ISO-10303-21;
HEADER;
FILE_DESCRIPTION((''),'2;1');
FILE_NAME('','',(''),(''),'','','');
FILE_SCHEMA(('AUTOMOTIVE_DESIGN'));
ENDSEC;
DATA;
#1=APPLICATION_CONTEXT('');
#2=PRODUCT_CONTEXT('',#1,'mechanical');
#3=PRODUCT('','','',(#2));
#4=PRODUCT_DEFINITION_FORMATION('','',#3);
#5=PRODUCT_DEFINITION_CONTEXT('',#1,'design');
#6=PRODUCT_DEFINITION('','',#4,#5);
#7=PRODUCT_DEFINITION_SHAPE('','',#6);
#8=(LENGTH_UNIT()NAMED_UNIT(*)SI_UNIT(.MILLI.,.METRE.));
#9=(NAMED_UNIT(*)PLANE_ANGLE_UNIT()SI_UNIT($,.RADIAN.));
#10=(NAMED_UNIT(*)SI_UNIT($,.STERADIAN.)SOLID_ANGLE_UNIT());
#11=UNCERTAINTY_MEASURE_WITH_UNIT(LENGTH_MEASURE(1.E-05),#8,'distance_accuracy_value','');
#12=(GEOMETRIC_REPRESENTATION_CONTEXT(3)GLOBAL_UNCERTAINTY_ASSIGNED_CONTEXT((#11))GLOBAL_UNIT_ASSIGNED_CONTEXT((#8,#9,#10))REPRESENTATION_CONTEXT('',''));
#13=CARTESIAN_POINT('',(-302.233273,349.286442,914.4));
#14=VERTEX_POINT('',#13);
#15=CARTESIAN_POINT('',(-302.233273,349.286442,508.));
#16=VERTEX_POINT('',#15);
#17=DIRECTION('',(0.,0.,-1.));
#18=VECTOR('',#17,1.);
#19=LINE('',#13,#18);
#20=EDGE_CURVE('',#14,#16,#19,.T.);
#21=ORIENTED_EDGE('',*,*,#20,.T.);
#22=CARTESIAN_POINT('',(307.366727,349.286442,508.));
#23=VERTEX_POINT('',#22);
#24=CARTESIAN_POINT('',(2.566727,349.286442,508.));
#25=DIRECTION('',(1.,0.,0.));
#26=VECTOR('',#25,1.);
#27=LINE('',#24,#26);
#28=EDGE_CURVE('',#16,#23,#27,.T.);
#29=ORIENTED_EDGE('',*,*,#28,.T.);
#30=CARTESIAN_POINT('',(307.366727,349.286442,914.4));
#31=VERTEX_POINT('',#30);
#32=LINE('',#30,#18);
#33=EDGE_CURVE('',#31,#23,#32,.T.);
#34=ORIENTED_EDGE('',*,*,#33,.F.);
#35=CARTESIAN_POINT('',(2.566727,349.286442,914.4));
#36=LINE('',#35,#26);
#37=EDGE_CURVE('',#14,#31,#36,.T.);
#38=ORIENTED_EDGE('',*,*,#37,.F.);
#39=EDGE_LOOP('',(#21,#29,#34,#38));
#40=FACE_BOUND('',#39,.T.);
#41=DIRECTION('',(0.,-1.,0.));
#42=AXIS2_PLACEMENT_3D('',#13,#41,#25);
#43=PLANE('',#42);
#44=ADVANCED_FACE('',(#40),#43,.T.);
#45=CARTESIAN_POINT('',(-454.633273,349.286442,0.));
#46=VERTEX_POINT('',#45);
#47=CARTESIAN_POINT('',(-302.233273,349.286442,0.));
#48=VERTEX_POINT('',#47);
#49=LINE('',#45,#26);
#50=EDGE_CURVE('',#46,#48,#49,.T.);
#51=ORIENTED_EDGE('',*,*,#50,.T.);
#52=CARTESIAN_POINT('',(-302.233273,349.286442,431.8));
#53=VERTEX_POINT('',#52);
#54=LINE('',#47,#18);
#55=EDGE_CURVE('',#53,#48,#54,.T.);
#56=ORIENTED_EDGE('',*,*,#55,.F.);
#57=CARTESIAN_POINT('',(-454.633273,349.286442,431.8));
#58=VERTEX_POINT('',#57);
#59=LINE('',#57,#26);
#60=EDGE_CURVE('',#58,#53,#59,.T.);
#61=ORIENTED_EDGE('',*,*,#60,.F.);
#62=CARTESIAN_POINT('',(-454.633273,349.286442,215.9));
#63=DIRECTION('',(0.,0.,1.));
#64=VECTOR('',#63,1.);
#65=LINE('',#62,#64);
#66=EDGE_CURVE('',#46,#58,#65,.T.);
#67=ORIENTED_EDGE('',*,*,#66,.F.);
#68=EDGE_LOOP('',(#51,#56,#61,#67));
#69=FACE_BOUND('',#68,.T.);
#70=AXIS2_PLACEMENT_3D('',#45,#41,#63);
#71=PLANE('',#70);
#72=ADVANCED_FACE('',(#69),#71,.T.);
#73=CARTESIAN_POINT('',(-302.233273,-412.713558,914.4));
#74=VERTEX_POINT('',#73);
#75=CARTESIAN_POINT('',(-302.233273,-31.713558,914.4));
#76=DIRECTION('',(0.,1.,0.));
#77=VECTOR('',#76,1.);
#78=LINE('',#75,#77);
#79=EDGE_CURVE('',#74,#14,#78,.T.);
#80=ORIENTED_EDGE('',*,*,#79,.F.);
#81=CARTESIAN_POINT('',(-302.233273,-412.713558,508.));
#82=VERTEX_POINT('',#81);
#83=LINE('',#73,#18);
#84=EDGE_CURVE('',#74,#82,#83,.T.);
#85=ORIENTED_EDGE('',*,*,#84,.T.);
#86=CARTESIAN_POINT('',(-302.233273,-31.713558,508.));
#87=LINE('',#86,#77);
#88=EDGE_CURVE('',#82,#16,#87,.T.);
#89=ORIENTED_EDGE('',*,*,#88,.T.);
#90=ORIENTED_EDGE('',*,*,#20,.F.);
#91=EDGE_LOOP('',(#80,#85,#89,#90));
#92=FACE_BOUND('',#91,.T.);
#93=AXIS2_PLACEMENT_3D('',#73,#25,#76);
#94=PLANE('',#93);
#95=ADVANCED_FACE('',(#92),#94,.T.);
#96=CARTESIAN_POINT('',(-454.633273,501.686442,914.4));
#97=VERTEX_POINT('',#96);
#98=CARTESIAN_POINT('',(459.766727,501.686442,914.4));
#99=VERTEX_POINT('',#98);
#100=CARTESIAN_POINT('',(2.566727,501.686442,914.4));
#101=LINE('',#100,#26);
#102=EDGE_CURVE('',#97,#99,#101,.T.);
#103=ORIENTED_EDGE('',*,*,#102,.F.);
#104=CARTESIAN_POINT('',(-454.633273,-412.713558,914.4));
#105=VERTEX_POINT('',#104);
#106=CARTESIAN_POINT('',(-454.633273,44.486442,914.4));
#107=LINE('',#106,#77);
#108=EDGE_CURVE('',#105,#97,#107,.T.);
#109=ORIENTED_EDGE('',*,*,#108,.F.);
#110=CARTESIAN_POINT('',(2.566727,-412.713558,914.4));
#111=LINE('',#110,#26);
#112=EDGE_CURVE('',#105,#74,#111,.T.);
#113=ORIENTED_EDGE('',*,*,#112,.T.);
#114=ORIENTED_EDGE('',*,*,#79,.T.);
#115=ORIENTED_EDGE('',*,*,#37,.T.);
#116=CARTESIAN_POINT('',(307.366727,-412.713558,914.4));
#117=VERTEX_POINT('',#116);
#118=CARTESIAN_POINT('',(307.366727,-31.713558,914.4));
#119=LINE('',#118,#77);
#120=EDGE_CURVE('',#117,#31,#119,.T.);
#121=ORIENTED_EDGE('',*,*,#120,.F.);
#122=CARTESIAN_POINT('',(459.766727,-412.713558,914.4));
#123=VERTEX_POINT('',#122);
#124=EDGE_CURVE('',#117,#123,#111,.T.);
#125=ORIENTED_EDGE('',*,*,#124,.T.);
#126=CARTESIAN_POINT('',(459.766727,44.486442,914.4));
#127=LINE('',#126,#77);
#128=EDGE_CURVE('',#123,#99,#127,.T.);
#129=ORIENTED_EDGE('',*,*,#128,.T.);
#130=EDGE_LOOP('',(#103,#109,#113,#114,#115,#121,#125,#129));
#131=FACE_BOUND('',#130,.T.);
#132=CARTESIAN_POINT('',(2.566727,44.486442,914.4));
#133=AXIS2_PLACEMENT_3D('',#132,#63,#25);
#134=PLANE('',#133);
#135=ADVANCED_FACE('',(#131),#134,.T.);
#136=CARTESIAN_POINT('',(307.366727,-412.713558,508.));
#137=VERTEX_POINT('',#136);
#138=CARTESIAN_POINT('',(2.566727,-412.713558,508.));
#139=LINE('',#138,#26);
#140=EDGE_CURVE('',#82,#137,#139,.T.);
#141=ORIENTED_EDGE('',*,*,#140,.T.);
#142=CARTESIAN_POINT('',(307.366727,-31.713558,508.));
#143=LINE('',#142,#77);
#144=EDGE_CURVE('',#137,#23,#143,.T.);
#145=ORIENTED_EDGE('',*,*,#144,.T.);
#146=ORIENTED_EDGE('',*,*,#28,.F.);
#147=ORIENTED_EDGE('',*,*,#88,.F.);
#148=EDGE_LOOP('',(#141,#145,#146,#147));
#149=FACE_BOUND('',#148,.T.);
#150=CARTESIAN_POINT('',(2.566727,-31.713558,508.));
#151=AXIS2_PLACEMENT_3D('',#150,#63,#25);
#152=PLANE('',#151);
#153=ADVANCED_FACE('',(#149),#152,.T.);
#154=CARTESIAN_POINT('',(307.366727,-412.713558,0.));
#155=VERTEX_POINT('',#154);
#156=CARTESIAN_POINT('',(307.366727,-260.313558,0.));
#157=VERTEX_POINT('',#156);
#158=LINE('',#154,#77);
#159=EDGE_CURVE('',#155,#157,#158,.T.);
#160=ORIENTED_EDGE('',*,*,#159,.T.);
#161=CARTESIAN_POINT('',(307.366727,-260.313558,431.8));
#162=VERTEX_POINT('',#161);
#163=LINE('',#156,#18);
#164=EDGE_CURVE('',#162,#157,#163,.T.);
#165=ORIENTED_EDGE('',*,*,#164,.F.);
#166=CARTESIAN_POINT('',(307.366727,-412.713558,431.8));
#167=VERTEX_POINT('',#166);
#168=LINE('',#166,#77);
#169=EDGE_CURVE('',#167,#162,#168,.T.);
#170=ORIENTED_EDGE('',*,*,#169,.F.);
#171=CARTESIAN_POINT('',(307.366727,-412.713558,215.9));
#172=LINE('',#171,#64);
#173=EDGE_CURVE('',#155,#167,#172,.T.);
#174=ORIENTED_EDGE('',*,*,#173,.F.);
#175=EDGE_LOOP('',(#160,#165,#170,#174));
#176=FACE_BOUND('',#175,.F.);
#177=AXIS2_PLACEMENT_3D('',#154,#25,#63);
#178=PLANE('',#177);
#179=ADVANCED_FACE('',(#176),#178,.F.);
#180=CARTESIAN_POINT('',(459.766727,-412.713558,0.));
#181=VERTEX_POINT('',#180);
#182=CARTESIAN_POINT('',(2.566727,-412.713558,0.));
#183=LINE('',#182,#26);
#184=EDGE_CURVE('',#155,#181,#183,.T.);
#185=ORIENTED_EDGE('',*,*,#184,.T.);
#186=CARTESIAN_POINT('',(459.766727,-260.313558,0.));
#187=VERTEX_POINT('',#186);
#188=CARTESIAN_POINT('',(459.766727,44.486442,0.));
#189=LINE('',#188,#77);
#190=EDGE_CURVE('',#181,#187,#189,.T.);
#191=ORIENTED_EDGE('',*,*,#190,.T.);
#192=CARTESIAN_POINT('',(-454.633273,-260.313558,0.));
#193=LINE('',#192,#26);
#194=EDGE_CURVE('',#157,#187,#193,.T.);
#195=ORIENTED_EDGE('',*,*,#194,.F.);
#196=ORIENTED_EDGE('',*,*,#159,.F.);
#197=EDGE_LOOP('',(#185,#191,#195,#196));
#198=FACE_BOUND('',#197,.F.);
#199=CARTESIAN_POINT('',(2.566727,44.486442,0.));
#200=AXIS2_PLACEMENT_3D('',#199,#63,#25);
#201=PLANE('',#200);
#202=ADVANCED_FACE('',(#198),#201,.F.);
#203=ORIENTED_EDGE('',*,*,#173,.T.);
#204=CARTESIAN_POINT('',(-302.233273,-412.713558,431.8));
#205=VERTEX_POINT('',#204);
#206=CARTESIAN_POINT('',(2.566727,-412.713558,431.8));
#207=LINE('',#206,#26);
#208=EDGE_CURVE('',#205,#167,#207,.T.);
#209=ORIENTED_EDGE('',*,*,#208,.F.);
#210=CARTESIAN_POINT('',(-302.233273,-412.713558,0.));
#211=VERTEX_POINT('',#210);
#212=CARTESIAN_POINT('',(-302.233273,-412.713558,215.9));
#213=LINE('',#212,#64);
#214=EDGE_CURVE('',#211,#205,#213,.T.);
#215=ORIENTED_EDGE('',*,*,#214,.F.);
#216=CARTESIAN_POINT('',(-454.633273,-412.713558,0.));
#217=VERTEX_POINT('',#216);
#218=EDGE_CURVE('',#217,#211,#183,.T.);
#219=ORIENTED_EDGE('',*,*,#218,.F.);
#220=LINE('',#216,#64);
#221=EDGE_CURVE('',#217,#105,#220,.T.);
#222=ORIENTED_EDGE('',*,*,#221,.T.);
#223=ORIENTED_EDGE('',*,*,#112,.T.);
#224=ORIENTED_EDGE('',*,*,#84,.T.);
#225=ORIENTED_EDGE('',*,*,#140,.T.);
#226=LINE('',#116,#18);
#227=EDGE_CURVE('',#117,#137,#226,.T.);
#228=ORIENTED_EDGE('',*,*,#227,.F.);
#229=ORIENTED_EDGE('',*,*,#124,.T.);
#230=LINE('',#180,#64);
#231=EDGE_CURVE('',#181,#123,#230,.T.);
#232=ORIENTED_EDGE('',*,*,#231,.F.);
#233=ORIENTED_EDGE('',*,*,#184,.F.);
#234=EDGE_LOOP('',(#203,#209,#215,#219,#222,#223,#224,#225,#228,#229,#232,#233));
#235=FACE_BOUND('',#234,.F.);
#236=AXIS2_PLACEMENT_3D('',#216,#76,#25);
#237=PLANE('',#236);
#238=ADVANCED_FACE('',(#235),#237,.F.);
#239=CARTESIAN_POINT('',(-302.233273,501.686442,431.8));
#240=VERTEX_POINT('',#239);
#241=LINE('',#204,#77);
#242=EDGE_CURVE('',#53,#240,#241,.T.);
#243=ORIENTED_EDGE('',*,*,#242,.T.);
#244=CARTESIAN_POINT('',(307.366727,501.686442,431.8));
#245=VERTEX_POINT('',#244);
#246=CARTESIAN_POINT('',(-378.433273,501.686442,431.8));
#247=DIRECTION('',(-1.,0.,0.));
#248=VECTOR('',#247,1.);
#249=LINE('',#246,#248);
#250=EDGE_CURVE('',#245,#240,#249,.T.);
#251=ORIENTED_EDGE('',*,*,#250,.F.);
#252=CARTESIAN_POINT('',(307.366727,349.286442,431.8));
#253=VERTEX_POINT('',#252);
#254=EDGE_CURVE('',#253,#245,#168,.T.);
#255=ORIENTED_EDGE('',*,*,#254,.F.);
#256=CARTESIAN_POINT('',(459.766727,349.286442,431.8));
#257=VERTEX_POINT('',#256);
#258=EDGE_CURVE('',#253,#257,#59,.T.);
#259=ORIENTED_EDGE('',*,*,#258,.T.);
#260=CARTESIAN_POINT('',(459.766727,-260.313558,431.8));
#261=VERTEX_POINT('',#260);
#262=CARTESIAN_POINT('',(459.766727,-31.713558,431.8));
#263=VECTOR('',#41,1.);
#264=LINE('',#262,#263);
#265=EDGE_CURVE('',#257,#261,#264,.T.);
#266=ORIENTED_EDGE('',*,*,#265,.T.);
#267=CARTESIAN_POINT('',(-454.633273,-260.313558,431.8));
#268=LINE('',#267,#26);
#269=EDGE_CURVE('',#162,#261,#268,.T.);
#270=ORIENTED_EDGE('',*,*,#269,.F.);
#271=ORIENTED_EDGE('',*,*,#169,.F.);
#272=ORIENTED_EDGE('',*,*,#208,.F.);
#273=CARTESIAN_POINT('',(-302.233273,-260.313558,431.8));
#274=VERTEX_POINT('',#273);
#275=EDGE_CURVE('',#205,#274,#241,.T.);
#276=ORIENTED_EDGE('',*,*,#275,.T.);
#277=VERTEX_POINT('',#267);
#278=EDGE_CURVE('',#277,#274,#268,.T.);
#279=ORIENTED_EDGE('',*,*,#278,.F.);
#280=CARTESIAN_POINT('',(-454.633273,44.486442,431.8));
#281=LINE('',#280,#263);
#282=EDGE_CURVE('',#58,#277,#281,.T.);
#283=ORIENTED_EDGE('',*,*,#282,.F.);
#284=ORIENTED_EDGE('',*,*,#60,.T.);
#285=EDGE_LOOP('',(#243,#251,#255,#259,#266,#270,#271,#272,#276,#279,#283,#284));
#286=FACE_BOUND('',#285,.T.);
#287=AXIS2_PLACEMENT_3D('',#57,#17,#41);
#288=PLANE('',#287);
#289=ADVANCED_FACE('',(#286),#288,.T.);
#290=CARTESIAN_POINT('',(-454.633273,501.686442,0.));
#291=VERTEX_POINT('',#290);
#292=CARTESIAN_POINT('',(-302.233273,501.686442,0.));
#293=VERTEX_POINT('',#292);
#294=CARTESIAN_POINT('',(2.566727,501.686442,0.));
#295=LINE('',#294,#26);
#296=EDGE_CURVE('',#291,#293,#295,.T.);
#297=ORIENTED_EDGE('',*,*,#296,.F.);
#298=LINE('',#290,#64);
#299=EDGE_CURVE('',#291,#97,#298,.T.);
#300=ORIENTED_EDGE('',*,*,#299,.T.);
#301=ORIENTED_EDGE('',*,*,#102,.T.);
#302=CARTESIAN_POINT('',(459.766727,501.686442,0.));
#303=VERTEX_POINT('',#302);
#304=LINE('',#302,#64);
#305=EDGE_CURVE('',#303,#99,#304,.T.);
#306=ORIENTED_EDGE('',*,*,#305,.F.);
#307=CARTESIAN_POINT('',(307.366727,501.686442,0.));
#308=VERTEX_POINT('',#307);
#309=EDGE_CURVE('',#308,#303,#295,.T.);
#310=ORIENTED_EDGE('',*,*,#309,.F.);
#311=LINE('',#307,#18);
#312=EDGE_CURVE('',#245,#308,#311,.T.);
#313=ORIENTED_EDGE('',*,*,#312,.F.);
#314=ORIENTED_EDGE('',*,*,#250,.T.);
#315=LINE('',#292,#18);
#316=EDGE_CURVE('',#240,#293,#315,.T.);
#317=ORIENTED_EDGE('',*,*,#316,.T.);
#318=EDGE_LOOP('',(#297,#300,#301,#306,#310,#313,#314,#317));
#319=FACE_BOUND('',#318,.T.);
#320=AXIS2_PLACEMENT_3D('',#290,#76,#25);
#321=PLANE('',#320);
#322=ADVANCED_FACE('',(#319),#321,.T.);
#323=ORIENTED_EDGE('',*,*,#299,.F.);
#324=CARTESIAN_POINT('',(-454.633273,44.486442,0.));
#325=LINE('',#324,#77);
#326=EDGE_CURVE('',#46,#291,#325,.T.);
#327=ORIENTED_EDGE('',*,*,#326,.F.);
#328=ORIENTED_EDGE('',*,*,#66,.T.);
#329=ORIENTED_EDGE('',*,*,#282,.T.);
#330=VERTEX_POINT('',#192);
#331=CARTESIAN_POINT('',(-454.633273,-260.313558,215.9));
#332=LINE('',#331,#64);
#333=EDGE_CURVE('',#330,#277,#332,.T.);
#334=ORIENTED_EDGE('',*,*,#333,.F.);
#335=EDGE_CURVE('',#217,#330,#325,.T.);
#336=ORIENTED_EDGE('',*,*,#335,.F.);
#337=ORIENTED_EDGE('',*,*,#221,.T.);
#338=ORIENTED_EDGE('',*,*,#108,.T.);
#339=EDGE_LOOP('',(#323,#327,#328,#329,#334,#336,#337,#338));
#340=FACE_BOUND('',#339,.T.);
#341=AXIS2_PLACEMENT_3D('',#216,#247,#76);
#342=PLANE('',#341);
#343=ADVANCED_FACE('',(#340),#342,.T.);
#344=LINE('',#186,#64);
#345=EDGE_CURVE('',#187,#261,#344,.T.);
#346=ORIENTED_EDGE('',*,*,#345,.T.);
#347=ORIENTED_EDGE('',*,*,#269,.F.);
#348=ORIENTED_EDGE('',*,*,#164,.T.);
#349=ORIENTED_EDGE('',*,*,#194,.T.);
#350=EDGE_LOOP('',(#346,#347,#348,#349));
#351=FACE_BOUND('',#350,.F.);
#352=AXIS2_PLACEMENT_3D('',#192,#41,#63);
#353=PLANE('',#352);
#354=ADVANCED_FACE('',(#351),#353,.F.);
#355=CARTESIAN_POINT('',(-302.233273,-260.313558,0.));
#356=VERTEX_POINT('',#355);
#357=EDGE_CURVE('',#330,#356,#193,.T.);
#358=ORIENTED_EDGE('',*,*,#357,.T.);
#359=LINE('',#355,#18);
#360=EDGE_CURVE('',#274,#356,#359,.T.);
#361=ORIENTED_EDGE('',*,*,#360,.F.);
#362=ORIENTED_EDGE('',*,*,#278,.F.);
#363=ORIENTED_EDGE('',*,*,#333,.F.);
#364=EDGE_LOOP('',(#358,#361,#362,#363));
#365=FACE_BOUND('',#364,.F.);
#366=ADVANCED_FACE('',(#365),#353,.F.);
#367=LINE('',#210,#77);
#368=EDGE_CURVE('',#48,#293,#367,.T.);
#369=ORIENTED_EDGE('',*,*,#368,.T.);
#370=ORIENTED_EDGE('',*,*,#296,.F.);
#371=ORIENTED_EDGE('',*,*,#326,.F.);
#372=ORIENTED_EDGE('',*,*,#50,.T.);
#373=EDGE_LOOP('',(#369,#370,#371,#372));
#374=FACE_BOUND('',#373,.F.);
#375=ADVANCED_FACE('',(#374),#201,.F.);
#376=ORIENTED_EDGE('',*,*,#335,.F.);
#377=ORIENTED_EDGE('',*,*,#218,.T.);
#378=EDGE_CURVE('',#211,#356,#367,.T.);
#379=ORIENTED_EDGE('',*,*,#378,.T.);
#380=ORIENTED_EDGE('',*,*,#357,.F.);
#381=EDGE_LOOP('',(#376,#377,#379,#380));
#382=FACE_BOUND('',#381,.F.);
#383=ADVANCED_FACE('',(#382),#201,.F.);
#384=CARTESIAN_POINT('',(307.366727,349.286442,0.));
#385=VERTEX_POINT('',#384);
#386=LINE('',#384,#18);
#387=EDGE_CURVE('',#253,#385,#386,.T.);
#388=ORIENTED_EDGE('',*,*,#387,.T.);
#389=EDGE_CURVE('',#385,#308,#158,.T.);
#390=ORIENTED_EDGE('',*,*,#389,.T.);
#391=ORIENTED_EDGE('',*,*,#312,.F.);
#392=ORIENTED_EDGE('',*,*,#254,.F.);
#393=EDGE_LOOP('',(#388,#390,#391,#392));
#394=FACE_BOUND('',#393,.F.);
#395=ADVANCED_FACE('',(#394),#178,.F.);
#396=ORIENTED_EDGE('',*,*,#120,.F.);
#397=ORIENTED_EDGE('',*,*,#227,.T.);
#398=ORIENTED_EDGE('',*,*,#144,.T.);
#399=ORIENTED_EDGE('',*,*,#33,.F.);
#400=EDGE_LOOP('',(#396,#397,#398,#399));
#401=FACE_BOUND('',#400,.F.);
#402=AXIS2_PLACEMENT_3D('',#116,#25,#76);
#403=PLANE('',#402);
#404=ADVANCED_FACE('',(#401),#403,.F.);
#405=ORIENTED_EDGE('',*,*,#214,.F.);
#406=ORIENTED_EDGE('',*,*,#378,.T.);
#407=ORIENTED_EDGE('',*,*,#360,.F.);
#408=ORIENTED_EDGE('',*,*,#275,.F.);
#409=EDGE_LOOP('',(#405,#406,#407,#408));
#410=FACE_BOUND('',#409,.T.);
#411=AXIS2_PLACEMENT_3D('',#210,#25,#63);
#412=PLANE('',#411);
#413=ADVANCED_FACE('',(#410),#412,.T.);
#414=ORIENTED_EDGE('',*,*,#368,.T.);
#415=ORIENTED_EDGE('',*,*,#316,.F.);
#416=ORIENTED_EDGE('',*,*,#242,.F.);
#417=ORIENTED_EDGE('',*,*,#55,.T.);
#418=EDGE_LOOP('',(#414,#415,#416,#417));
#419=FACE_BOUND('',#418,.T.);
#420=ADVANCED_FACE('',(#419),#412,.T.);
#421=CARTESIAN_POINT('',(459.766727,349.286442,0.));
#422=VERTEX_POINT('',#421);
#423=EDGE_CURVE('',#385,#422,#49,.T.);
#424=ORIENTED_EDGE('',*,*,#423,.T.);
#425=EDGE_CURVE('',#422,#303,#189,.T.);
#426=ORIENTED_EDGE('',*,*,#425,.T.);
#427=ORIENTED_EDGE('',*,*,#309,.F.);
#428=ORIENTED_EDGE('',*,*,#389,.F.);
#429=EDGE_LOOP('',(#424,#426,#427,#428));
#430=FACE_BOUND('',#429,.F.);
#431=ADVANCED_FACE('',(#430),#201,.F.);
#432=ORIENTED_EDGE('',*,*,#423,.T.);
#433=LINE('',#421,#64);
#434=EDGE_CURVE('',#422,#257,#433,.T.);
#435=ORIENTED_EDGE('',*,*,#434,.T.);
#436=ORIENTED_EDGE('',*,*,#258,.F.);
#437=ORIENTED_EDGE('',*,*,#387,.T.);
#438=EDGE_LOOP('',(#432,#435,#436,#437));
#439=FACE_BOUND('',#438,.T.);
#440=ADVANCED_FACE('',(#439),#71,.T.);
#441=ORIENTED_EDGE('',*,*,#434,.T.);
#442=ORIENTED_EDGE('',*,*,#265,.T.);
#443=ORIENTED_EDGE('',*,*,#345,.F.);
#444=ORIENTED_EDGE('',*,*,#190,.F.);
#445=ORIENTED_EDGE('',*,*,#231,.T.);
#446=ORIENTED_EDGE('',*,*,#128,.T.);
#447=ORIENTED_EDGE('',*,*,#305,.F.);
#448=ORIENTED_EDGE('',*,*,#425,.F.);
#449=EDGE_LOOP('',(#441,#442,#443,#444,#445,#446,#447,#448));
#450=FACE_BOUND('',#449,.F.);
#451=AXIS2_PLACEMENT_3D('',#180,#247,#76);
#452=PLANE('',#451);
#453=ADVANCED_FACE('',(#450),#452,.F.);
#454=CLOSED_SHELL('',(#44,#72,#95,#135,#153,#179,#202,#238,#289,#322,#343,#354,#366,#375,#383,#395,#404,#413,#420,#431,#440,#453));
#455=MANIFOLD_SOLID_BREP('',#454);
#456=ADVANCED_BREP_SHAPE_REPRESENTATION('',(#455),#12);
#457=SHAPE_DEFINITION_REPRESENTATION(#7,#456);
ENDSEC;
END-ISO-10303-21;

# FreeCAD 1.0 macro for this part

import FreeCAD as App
import Part
import Sketcher
from FreeCAD import Vector
Q = App.Units.Quantity

doc = App.newDocument("Part")
body = doc.addObject("PartDesign::Body", "Body")

sketch1 = body.newObject("Sketcher::SketchObject", "Sketch")
sketch1.AttachmentSupport = (doc.getObject("XY_Plane"), [""])
sketch1.MapMode = "FlatFace"
sketch1.addGeometry([
    Part.LineSegment(Vector(-455, 502, 0), Vector(-455, -413, 0)),
    Part.LineSegment(Vector(-455, -413, 0), Vector(460, -413, 0)),
    Part.LineSegment(Vector(460, -413, 0), Vector(460, 502, 0)),
    Part.LineSegment(Vector(460, 502, 0), Vector(-455, 502, 0)),
], False)
sketch1.addConstraint([
    Sketcher.Constraint("Coincident", 0, 2, 1, 1),
    Sketcher.Constraint("Coincident", 1, 2, 2, 1),
    Sketcher.Constraint("Coincident", 2, 2, 3, 1),
    Sketcher.Constraint("Coincident", 3, 2, 0, 1),
    Sketcher.Constraint("Vertical", 0),
    Sketcher.Constraint("Horizontal", 1),
    Sketcher.Constraint("Vertical", 2),
    Sketcher.Constraint("Horizontal", 3),
    Sketcher.Constraint("Equal", 3, 0),
    Sketcher.Constraint("DistanceX", 1, 1, 1, 2, Q("36 in")),
    Sketcher.Constraint("DistanceY", 0, 2, -1, 1, Q("412.713558 mm")),
    Sketcher.Constraint("DistanceX", 0, 2, -1, 1, Q("454.633273 mm")),
])
pad1 = body.newObject("PartDesign::Pad", "Pad")
pad1.Profile = sketch1
pad1.Length = Q("36 in")

sketch2 = body.newObject("Sketcher::SketchObject", "Sketch001")
sketch2.AttachmentSupport = (doc.getObject("XY_Plane"), [""])
sketch2.MapMode = "FlatFace"
sketch2.AttachmentOffset = App.Placement(Vector(0, 0, 36 * 25.4), App.Rotation())
sketch2.addGeometry([
    Part.LineSegment(Vector(-302, 349, 0), Vector(-302, -413, 0)),
    Part.LineSegment(Vector(-302, -413, 0), Vector(307, -413, 0)),
    Part.LineSegment(Vector(307, -413, 0), Vector(307, 349, 0)),
    Part.LineSegment(Vector(307, 349, 0), Vector(-302, 349, 0)),
], False)
sketch2.addConstraint([
    Sketcher.Constraint("Coincident", 0, 2, 1, 1),
    Sketcher.Constraint("Coincident", 1, 2, 2, 1),
    Sketcher.Constraint("Coincident", 2, 2, 3, 1),
    Sketcher.Constraint("Coincident", 3, 2, 0, 1),
    Sketcher.Constraint("Vertical", 0),
    Sketcher.Constraint("Horizontal", 1),
    Sketcher.Constraint("Vertical", 2),
    Sketcher.Constraint("Horizontal", 3),
    Sketcher.Constraint("DistanceX", 1, 1, 1, 2, Q("24 in")),
    Sketcher.Constraint("DistanceY", 0, 2, 0, 1, Q("30 in")),
    Sketcher.Constraint("DistanceY", 0, 2, -1, 1, Q("412.713558 mm")),
    Sketcher.Constraint("DistanceX", 0, 2, -1, 1, Q("302.233273 mm")),
])
pocket1 = body.newObject("PartDesign::Pocket", "Pocket")
pocket1.Profile = sketch2
pocket1.Length = Q("16 in")

sketch3 = body.newObject("Sketcher::SketchObject", "Sketch002")
sketch3.AttachmentSupport = (doc.getObject("XZ_Plane"), [""])
sketch3.MapMode = "FlatFace"
sketch3.AttachmentOffset = App.Placement(Vector(0, 0, 412.713558), App.Rotation())
sketch3.addGeometry([
    Part.LineSegment(Vector(-302, 432, 0), Vector(-302, 0, 0)),
    Part.LineSegment(Vector(-302, 0, 0), Vector(307, 0, 0)),
    Part.LineSegment(Vector(307, 0, 0), Vector(307, 432, 0)),
    Part.LineSegment(Vector(307, 432, 0), Vector(-302, 432, 0)),
], False)
sketch3.addConstraint([
    Sketcher.Constraint("Coincident", 0, 2, 1, 1),
    Sketcher.Constraint("Coincident", 1, 2, 2, 1),
    Sketcher.Constraint("Coincident", 2, 2, 3, 1),
    Sketcher.Constraint("Coincident", 3, 2, 0, 1),
    Sketcher.Constraint("Vertical", 0),
    Sketcher.Constraint("Horizontal", 1),
    Sketcher.Constraint("Vertical", 2),
    Sketcher.Constraint("Horizontal", 3),
    Sketcher.Constraint("PointOnObject", 0, 2, -1),
    Sketcher.Constraint("DistanceX", 1, 1, 1, 2, Q("24 in")),
    Sketcher.Constraint("DistanceY", 0, 2, 0, 1, Q("17 in")),
    Sketcher.Constraint("DistanceX", 0, 2, -1, 1, Q("302.233273 mm")),
])
pocket2 = body.newObject("PartDesign::Pocket", "Pocket001")
pocket2.Profile = sketch3
pocket2.Type = "ThroughAll"

sketch4 = body.newObject("Sketcher::SketchObject", "Sketch003")
sketch4.AttachmentSupport = (doc.getObject("YZ_Plane"), [""])
sketch4.MapMode = "FlatFace"
sketch4.AttachmentOffset = App.Placement(Vector(0, 0, -454.633273), App.Rotation())
sketch4.addGeometry([
    Part.LineSegment(Vector(349, 432, 0), Vector(349, 0, 0)),
    Part.LineSegment(Vector(349, 0, 0), Vector(-260, 0, 0)),
    Part.LineSegment(Vector(-260, 0, 0), Vector(-260, 432, 0)),
    Part.LineSegment(Vector(-260, 432, 0), Vector(349, 432, 0)),
], False)
sketch4.addConstraint([
    Sketcher.Constraint("Coincident", 0, 2, 1, 1),
    Sketcher.Constraint("Coincident", 1, 2, 2, 1),
    Sketcher.Constraint("Coincident", 2, 2, 3, 1),
    Sketcher.Constraint("Coincident", 3, 2, 0, 1),
    Sketcher.Constraint("Vertical", 0),
    Sketcher.Constraint("Horizontal", 1),
    Sketcher.Constraint("Vertical", 2),
    Sketcher.Constraint("Horizontal", 3),
    Sketcher.Constraint("PointOnObject", 0, 2, -1),
    Sketcher.Constraint("DistanceX", 1, 2, 1, 1, Q("24 in")),
    Sketcher.Constraint("DistanceY", 0, 2, 0, 1, Q("17 in")),
    Sketcher.Constraint("DistanceX", -1, 1, 0, 2, Q("349.286442 mm")),
])
pocket3 = body.newObject("PartDesign::Pocket", "Pocket002")
pocket3.Profile = sketch4
pocket3.Type = "ThroughAll"
pocket3.Reversed = True

doc.recompute()
